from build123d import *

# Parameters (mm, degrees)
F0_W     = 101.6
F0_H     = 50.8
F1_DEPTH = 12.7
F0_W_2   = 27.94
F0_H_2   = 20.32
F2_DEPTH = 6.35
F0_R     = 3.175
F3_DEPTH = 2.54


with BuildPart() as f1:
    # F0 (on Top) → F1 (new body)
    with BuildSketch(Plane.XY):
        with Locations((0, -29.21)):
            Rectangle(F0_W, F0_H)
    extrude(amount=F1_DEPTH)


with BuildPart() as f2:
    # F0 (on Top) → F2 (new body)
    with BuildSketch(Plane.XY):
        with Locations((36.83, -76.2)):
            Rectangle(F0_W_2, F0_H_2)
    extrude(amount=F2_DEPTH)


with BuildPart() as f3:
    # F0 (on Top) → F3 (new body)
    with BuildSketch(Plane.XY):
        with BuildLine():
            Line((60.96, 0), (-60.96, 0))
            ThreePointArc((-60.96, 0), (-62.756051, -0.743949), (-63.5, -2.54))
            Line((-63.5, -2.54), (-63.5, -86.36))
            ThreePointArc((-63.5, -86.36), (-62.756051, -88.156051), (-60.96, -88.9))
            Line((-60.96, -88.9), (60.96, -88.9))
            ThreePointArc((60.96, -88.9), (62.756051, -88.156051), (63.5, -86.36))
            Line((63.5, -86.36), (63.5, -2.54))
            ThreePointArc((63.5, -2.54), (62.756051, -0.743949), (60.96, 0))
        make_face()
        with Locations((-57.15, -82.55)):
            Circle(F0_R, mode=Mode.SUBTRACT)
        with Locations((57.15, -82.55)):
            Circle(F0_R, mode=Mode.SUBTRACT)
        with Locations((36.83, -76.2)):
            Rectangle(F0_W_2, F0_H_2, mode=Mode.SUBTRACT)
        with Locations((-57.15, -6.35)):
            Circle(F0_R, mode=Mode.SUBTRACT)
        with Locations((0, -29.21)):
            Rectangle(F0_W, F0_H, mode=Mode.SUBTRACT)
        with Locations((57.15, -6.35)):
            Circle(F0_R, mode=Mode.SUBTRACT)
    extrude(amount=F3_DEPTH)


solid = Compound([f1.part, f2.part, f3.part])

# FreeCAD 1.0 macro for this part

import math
import FreeCAD as App
import Part
import Sketcher
Q = App.Units.Quantity

doc = App.newDocument("Part")
body = doc.addObject("PartDesign::Body", "Body")

# Sketch on XY plane
sketch1 = doc.addObject("Sketcher::SketchObject", "Sketch")
body.addObject(sketch1)
sketch1.AttachmentSupport = (doc.XY_Plane, [""])
sketch1.MapMode = "FlatFace"
sketch1.addGeometry([
    Part.LineSegment(App.Vector(-51, -4, 0), App.Vector(-51, -55, 0)),
    Part.LineSegment(App.Vector(-51, -55, 0), App.Vector(51, -55, 0)),
    Part.LineSegment(App.Vector(51, -55, 0), App.Vector(51, -4, 0)),
    Part.LineSegment(App.Vector(51, -4, 0), App.Vector(-51, -4, 0)),
], False)
sketch1.addConstraint([
    Sketcher.Constraint("Coincident", 0, 2, 1, 1),
    Sketcher.Constraint("Coincident", 1, 2, 2, 1),
    Sketcher.Constraint("Coincident", 2, 2, 3, 1),
    Sketcher.Constraint("Coincident", 3, 2, 0, 1),
    Sketcher.Constraint("Vertical", 0),
    Sketcher.Constraint("Horizontal", 1),
    Sketcher.Constraint("Vertical", 2),
    Sketcher.Constraint("Horizontal", 3),
    Sketcher.Constraint("DistanceX", 1, 1, 1, 2, Q("4 in")),
    Sketcher.Constraint("DistanceY", 0, 2, 0, 1, Q("2 in")),
    Sketcher.Constraint("DistanceX", 0, 2, -1, 1, Q("2 in")),
    Sketcher.Constraint("DistanceY", 0, 2, -1, 1, Q("2.15 in")),
])
pad1 = doc.addObject("PartDesign::Pad", "Pad")
body.addObject(pad1)
pad1.Profile = sketch1
pad1.Length = Q("0.5 in")
body2 = doc.addObject("PartDesign::Body", "Body001")

# Sketch on XY plane
sketch2 = doc.addObject("Sketcher::SketchObject", "Sketch001")
body2.addObject(sketch2)
sketch2.AttachmentSupport = (doc.getObject("XY_Plane001"), [""])
sketch2.MapMode = "FlatFace"
sketch2.addGeometry([
    Part.LineSegment(App.Vector(23, -66, 0), App.Vector(23, -86, 0)),
    Part.LineSegment(App.Vector(23, -86, 0), App.Vector(51, -86, 0)),
    Part.LineSegment(App.Vector(51, -86, 0), App.Vector(51, -66, 0)),
    Part.LineSegment(App.Vector(51, -66, 0), App.Vector(23, -66, 0)),
], False)
sketch2.addConstraint([
    Sketcher.Constraint("Coincident", 0, 2, 1, 1),
    Sketcher.Constraint("Coincident", 1, 2, 2, 1),
    Sketcher.Constraint("Coincident", 2, 2, 3, 1),
    Sketcher.Constraint("Coincident", 3, 2, 0, 1),
    Sketcher.Constraint("Vertical", 0),
    Sketcher.Constraint("Horizontal", 1),
    Sketcher.Constraint("Vertical", 2),
    Sketcher.Constraint("Horizontal", 3),
    Sketcher.Constraint("DistanceX", 1, 1, 1, 2, Q("1.1 in")),
    Sketcher.Constraint("DistanceY", 0, 2, 0, 1, Q("0.8 in")),
    Sketcher.Constraint("DistanceX", -1, 1, 1, 2, Q("2 in")),
    Sketcher.Constraint("DistanceY", 0, 2, -1, 1, Q("3.4 in")),
])
pad2 = doc.addObject("PartDesign::Pad", "Pad001")
body2.addObject(pad2)
pad2.Profile = sketch2
pad2.Length = Q("0.25 in")
body3 = doc.addObject("PartDesign::Body", "Body002")

# Sketch on XY plane
sketch3 = doc.addObject("Sketcher::SketchObject", "Sketch002")
body3.addObject(sketch3)
sketch3.AttachmentSupport = (doc.getObject("XY_Plane002"), [""])
sketch3.MapMode = "FlatFace"
sketch3.addGeometry([
    Part.LineSegment(App.Vector(61, 0, 0), App.Vector(-61, 0, 0)),  # 0
    Part.ArcOfCircle(Part.Circle(App.Vector(-61, -2.5, 0), App.Vector(0, 0, 1), 2.5), math.radians(90), math.radians(180)),  # 1
    Part.LineSegment(App.Vector(-63.5, -2.5, 0), App.Vector(-63.5, -86.4, 0)),  # 2
    Part.ArcOfCircle(Part.Circle(App.Vector(-61, -86.4, 0), App.Vector(0, 0, 1), 2.5), math.radians(-180), math.radians(-90)),  # 3
    Part.LineSegment(App.Vector(-61, -88.9, 0), App.Vector(61, -88.9, 0)),  # 4
    Part.ArcOfCircle(Part.Circle(App.Vector(61, -86.4, 0), App.Vector(0, 0, 1), 2.5), math.radians(-90), math.radians(0)),  # 5
    Part.LineSegment(App.Vector(63.5, -86.4, 0), App.Vector(63.5, -2.5, 0)),  # 6
    Part.ArcOfCircle(Part.Circle(App.Vector(61, -2.5, 0), App.Vector(0, 0, 1), 2.5), math.radians(0), math.radians(90)),  # 7
    Part.Circle(App.Vector(-57.1, -82.5, 0), App.Vector(0, 0, 1), 3.2),  # 8
    Part.LineSegment(App.Vector(50.8, -86.4, 0), App.Vector(22.9, -86.4, 0)),  # 9
    Part.LineSegment(App.Vector(22.9, -86.4, 0), App.Vector(22.9, -66, 0)),  # 10
    Part.LineSegment(App.Vector(22.9, -66, 0), App.Vector(50.8, -66, 0)),  # 11
    Part.LineSegment(App.Vector(50.8, -66, 0), App.Vector(50.8, -86.4, 0)),  # 12
    Part.Circle(App.Vector(57.1, -82.5, 0), App.Vector(0, 0, 1), 3.2),  # 13
    Part.Circle(App.Vector(-57.1, -6.3, 0), App.Vector(0, 0, 1), 3.2),  # 14
    Part.LineSegment(App.Vector(50.8, -54.6, 0), App.Vector(-50.8, -54.6, 0)),  # 15
    Part.LineSegment(App.Vector(-50.8, -54.6, 0), App.Vector(-50.8, -3.8, 0)),  # 16
    Part.LineSegment(App.Vector(-50.8, -3.8, 0), App.Vector(50.8, -3.8, 0)),  # 17
    Part.LineSegment(App.Vector(50.8, -3.8, 0), App.Vector(50.8, -54.6, 0)),  # 18
    Part.Circle(App.Vector(57.1, -6.3, 0), App.Vector(0, 0, 1), 3.2),  # 19
], False)
sketch3.addConstraint([
    Sketcher.Constraint("Tangent", 0, 2, 1, 1),
    Sketcher.Constraint("Tangent", 1, 2, 2, 1),
    Sketcher.Constraint("Tangent", 2, 2, 3, 1),
    Sketcher.Constraint("Tangent", 3, 2, 4, 1),
    Sketcher.Constraint("Tangent", 4, 2, 5, 1),
    Sketcher.Constraint("Tangent", 5, 2, 6, 1),
    Sketcher.Constraint("Tangent", 6, 2, 7, 1),
    Sketcher.Constraint("Tangent", 7, 2, 0, 1),
    Sketcher.Constraint("Coincident", 9, 2, 10, 1),
    Sketcher.Constraint("Coincident", 10, 2, 11, 1),
    Sketcher.Constraint("Coincident", 11, 2, 12, 1),
    Sketcher.Constraint("Coincident", 12, 2, 9, 1),
    Sketcher.Constraint("Coincident", 15, 2, 16, 1),
    Sketcher.Constraint("Coincident", 16, 2, 17, 1),
    Sketcher.Constraint("Coincident", 17, 2, 18, 1),
    Sketcher.Constraint("Coincident", 18, 2, 15, 1),
    Sketcher.Constraint("Horizontal", 0),
    Sketcher.Constraint("Vertical", 2),
    Sketcher.Constraint("Horizontal", 4),
    Sketcher.Constraint("Vertical", 6),
    Sketcher.Constraint("Horizontal", 9),
    Sketcher.Constraint("Vertical", 10),
    Sketcher.Constraint("Horizontal", 11),
    Sketcher.Constraint("Vertical", 12),
    Sketcher.Constraint("Horizontal", 15),
    Sketcher.Constraint("Vertical", 16),
    Sketcher.Constraint("Horizontal", 17),
    Sketcher.Constraint("Vertical", 18),
    Sketcher.Constraint("Equal", 1, 3),
    Sketcher.Constraint("Equal", 3, 5),
    Sketcher.Constraint("Equal", 5, 7),
    Sketcher.Constraint("Equal", 8, 13),
    Sketcher.Constraint("Equal", 13, 14),
    Sketcher.Constraint("Equal", 14, 19),
    Sketcher.Constraint("Symmetric", 0, 2, 7, 2, -1, 1),
    Sketcher.Constraint("Symmetric", 8, 3, 13, 3, -2),
    Sketcher.Constraint("Symmetric", 14, 3, 19, 3, -2),
    Sketcher.Constraint("Horizontal", 5, 2, 9, 2),
    Sketcher.Constraint("Vertical", 8, 3, 14, 3),
    Sketcher.Constraint("Vertical", 12, 2, 17, 2),
    Sketcher.Constraint("Radius", 1, Q("0.1 in")),
    Sketcher.Constraint("Diameter", 8, Q("0.25 in")),
    Sketcher.Constraint("DistanceX", 15, 2, 15, 1, Q("4 in")),
    Sketcher.Constraint("DistanceY", 16, 1, 16, 2, Q("2 in")),
    Sketcher.Constraint("DistanceX", 0, 2, 0, 1, Q("4.8 in")),
    Sketcher.Constraint("DistanceX", 9, 2, 9, 1, Q("1.1 in")),
    Sketcher.Constraint("DistanceY", 2, 2, 2, 1, Q("3.3 in")),
    Sketcher.Constraint("DistanceY", 10, 1, 10, 2, Q("0.8 in")),
    Sketcher.Constraint("DistanceX", -1, 1, 11, 2, Q("2 in")),
    Sketcher.Constraint("DistanceY", 8, 3, 14, 3, Q("3 in")),
    Sketcher.Constraint("DistanceX", 8, 3, 13, 3, Q("4.5 in")),
    Sketcher.Constraint("DistanceY", 8, 3, 15, 2, Q("1.1 in")),
    Sketcher.Constraint("DistanceY", 8, 3, -1, 1, Q("3.25 in")),
])
pad3 = doc.addObject("PartDesign::Pad", "Pad002")
body3.addObject(pad3)
pad3.Profile = sketch3
pad3.Length = Q("0.1 in")

doc.recompute()
